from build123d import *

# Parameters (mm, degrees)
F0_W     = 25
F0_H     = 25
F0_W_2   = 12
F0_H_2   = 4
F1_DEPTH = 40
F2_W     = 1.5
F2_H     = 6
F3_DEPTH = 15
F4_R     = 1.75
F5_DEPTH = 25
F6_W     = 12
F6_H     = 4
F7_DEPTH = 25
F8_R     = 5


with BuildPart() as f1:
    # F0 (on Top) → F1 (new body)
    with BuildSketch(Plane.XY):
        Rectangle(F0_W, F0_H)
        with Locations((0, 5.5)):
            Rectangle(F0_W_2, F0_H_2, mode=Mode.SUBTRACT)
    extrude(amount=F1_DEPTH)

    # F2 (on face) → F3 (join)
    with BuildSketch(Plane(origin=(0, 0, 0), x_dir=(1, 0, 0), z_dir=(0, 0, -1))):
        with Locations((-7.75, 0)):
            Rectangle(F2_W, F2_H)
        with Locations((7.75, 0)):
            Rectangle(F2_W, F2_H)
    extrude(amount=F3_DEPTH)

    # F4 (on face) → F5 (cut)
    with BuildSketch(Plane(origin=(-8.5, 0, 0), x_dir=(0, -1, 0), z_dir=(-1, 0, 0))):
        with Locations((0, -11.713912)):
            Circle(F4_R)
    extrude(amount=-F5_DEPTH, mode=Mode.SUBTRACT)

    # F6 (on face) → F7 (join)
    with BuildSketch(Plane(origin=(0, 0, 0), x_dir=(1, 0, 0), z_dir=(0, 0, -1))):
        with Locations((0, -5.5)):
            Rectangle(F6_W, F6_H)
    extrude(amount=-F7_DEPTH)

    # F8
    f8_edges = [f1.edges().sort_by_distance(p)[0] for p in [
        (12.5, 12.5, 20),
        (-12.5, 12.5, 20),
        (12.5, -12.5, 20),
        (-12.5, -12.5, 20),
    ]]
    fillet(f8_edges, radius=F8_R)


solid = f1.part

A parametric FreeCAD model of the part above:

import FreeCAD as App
import Part
import Sketcher
from FreeCAD import Vector


def edges_at(feature, points):
    """Names of the edges that pass closest to the given points."""
    edges = feature.Shape.Edges
    near = lambda p: min(range(len(edges)), key=lambda i: edges[i].distToShape(Part.Vertex(*p))[0])
    return sorted({f"Edge{near(p) + 1}" for p in points})

doc = App.newDocument("Part")
body = doc.addObject("PartDesign::Body", "Body")

sketch1 = body.newObject("Sketcher::SketchObject", "Sketch")
sketch1.AttachmentSupport = (doc.getObject("XY_Plane"), [""])
sketch1.MapMode = "FlatFace"
sketch1.addGeometry(Part.LineSegment(Vector(-12.5, 12.5, 0), Vector(-12.5, -12.5, 0)), False)
sketch1.addGeometry(Part.LineSegment(Vector(-12.5, -12.5, 0), Vector(12.5, -12.5, 0)), False)
sketch1.addGeometry(Part.LineSegment(Vector(12.5, -12.5, 0), Vector(12.5, 12.5, 0)), False)
sketch1.addGeometry(Part.LineSegment(Vector(12.5, 12.5, 0), Vector(-12.5, 12.5, 0)), False)
sketch1.addGeometry(Part.LineSegment(Vector(6, 3.5, 0), Vector(-6, 3.5, 0)), False)
sketch1.addGeometry(Part.LineSegment(Vector(-6, 3.5, 0), Vector(-6, 7.5, 0)), False)
sketch1.addGeometry(Part.LineSegment(Vector(-6, 7.5, 0), Vector(6, 7.5, 0)), False)
sketch1.addGeometry(Part.LineSegment(Vector(6, 7.5, 0), Vector(6, 3.5, 0)), False)
sketch1.addConstraint(Sketcher.Constraint("Coincident", 0, 2, 1, 1))
sketch1.addConstraint(Sketcher.Constraint("Coincident", 1, 2, 2, 1))
sketch1.addConstraint(Sketcher.Constraint("Coincident", 2, 2, 3, 1))
sketch1.addConstraint(Sketcher.Constraint("Coincident", 3, 2, 0, 1))
sketch1.addConstraint(Sketcher.Constraint("Coincident", 4, 2, 5, 1))
sketch1.addConstraint(Sketcher.Constraint("Coincident", 5, 2, 6, 1))
sketch1.addConstraint(Sketcher.Constraint("Coincident", 6, 2, 7, 1))
sketch1.addConstraint(Sketcher.Constraint("Coincident", 7, 2, 4, 1))
sketch1.addConstraint(Sketcher.Constraint("Vertical", 0))
sketch1.addConstraint(Sketcher.Constraint("Horizontal", 1))
sketch1.addConstraint(Sketcher.Constraint("Vertical", 2))
sketch1.addConstraint(Sketcher.Constraint("Horizontal", 3))
sketch1.addConstraint(Sketcher.Constraint("Horizontal", 4))
sketch1.addConstraint(Sketcher.Constraint("Vertical", 5))
sketch1.addConstraint(Sketcher.Constraint("Horizontal", 6))
sketch1.addConstraint(Sketcher.Constraint("Vertical", 7))
sketch1.addConstraint(Sketcher.Constraint("Symmetric", 0, 2, 2, 2, -1, 1))
sketch1.addConstraint(Sketcher.Constraint("Equal", 3, 0))
sketch1.addConstraint(Sketcher.Constraint("DistanceX", 1, 1, 1, 2, 25.0))
sketch1.addConstraint(Sketcher.Constraint("DistanceX", 4, 2, 4, 1, 12.0))
sketch1.addConstraint(Sketcher.Constraint("DistanceY", 5, 1, 5, 2, 4.0))
sketch1.addConstraint(Sketcher.Constraint("DistanceX", 4, 2, -1, 1, 6.0))
sketch1.addConstraint(Sketcher.Constraint("DistanceY", 4, 2, 3, 2, 9.0))
pad1 = body.newObject("PartDesign::Pad", "Pad")
pad1.Profile = sketch1
pad1.Length = 40

sketch2 = body.newObject("Sketcher::SketchObject", "Sketch001")
sketch2.AttachmentSupport = (doc.getObject("XY_Plane"), [""])
sketch2.MapMode = "FlatFace"
sketch2.addGeometry(Part.LineSegment(Vector(-8.5, -3, 0), Vector(-8.5, 3, 0)), False)
sketch2.addGeometry(Part.LineSegment(Vector(-8.5, 3, 0), Vector(-7, 3, 0)), False)
sketch2.addGeometry(Part.LineSegment(Vector(-7, 3, 0), Vector(-7, -3, 0)), False)
sketch2.addGeometry(Part.LineSegment(Vector(-7, -3, 0), Vector(-8.5, -3, 0)), False)
sketch2.addGeometry(Part.LineSegment(Vector(7, -3, 0), Vector(7, 3, 0)), False)
sketch2.addGeometry(Part.LineSegment(Vector(7, 3, 0), Vector(8.5, 3, 0)), False)
sketch2.addGeometry(Part.LineSegment(Vector(8.5, 3, 0), Vector(8.5, -3, 0)), False)
sketch2.addGeometry(Part.LineSegment(Vector(8.5, -3, 0), Vector(7, -3, 0)), False)
sketch2.addConstraint(Sketcher.Constraint("Coincident", 0, 2, 1, 1))
sketch2.addConstraint(Sketcher.Constraint("Coincident", 1, 2, 2, 1))
sketch2.addConstraint(Sketcher.Constraint("Coincident", 2, 2, 3, 1))
sketch2.addConstraint(Sketcher.Constraint("Coincident", 3, 2, 0, 1))
sketch2.addConstraint(Sketcher.Constraint("Coincident", 4, 2, 5, 1))
sketch2.addConstraint(Sketcher.Constraint("Coincident", 5, 2, 6, 1))
sketch2.addConstraint(Sketcher.Constraint("Coincident", 6, 2, 7, 1))
sketch2.addConstraint(Sketcher.Constraint("Coincident", 7, 2, 4, 1))
sketch2.addConstraint(Sketcher.Constraint("Vertical", 0))
sketch2.addConstraint(Sketcher.Constraint("Horizontal", 1))
sketch2.addConstraint(Sketcher.Constraint("Vertical", 2))
sketch2.addConstraint(Sketcher.Constraint("Horizontal", 3))
sketch2.addConstraint(Sketcher.Constraint("Vertical", 4))
sketch2.addConstraint(Sketcher.Constraint("Horizontal", 5))
sketch2.addConstraint(Sketcher.Constraint("Vertical", 6))
sketch2.addConstraint(Sketcher.Constraint("Horizontal", 7))
sketch2.addConstraint(Sketcher.Constraint("Symmetric", 2, 2, 4, 2, -1, 1))
sketch2.addConstraint(Sketcher.Constraint("Symmetric", 0, 2, 6, 2, -1, 1))
sketch2.addConstraint(Sketcher.Constraint("Horizontal", 1, 2, 4, 2))
sketch2.addConstraint(Sketcher.Constraint("DistanceY", 0, 1, 0, 2, 6.0))
sketch2.addConstraint(Sketcher.Constraint("DistanceX", 1, 1, 1, 2, 1.5))
sketch2.addConstraint(Sketcher.Constraint("DistanceX", 1, 2, -1, 1, 7.0))
pad2 = body.newObject("PartDesign::Pad", "Pad001")
pad2.Profile = sketch2
pad2.Length = 15
pad2.Reversed = True

sketch3 = body.newObject("Sketcher::SketchObject", "Sketch002")
sketch3.AttachmentSupport = (doc.getObject("YZ_Plane"), [""])
sketch3.MapMode = "FlatFace"
sketch3.AttachmentOffset = App.Placement(Vector(0, 0, -8.5), App.Rotation())
sketch3.addGeometry(Part.Circle(Vector(0, -11.7, 0), Vector(0, 0, 1), 1.8), False)
sketch3.addConstraint(Sketcher.Constraint("PointOnObject", 0, 3, -2))
sketch3.addConstraint(Sketcher.Constraint("Diameter", 0, 3.5))
sketch3.addConstraint(Sketcher.Constraint("DistanceY", 0, 3, -1, 1, 11.713912))
pocket1 = body.newObject("PartDesign::Pocket", "Pocket")
pocket1.Profile = sketch3
pocket1.Length = 25
pocket1.Reversed = True

sketch4 = body.newObject("Sketcher::SketchObject", "Sketch003")
sketch4.AttachmentSupport = (doc.getObject("XY_Plane"), [""])
sketch4.MapMode = "FlatFace"
sketch4.addGeometry(Part.LineSegment(Vector(-6, 3.5, 0), Vector(-6, 7.5, 0)), False)
sketch4.addGeometry(Part.LineSegment(Vector(-6, 7.5, 0), Vector(6, 7.5, 0)), False)
sketch4.addGeometry(Part.LineSegment(Vector(6, 7.5, 0), Vector(6, 3.5, 0)), False)
sketch4.addGeometry(Part.LineSegment(Vector(6, 3.5, 0), Vector(-6, 3.5, 0)), False)
sketch4.addConstraint(Sketcher.Constraint("Coincident", 0, 2, 1, 1))
sketch4.addConstraint(Sketcher.Constraint("Coincident", 1, 2, 2, 1))
sketch4.addConstraint(Sketcher.Constraint("Coincident", 2, 2, 3, 1))
sketch4.addConstraint(Sketcher.Constraint("Coincident", 3, 2, 0, 1))
sketch4.addConstraint(Sketcher.Constraint("Vertical", 0))
sketch4.addConstraint(Sketcher.Constraint("Horizontal", 1))
sketch4.addConstraint(Sketcher.Constraint("Vertical", 2))
sketch4.addConstraint(Sketcher.Constraint("Horizontal", 3))
sketch4.addConstraint(Sketcher.Constraint("DistanceX", 1, 1, 1, 2, 12.0))
sketch4.addConstraint(Sketcher.Constraint("DistanceY", 0, 1, 0, 2, 4.0))
sketch4.addConstraint(Sketcher.Constraint("DistanceX", 0, 2, -1, 1, 6.0))
sketch4.addConstraint(Sketcher.Constraint("DistanceY", -1, 1, 0, 2, 7.5))
pad3 = body.newObject("PartDesign::Pad", "Pad002")
pad3.Profile = sketch4
pad3.Length = 25
doc.recompute()

fillet = body.newObject("PartDesign::Fillet", "Fillet")
fillet.Base = (pad3, edges_at(pad3, [
    (12.5, 12.5, 20),
    (-12.5, 12.5, 20),
    (12.5, -12.5, 20),
    (-12.5, -12.5, 20),
]))
fillet.Radius = 5

doc.recompute()
